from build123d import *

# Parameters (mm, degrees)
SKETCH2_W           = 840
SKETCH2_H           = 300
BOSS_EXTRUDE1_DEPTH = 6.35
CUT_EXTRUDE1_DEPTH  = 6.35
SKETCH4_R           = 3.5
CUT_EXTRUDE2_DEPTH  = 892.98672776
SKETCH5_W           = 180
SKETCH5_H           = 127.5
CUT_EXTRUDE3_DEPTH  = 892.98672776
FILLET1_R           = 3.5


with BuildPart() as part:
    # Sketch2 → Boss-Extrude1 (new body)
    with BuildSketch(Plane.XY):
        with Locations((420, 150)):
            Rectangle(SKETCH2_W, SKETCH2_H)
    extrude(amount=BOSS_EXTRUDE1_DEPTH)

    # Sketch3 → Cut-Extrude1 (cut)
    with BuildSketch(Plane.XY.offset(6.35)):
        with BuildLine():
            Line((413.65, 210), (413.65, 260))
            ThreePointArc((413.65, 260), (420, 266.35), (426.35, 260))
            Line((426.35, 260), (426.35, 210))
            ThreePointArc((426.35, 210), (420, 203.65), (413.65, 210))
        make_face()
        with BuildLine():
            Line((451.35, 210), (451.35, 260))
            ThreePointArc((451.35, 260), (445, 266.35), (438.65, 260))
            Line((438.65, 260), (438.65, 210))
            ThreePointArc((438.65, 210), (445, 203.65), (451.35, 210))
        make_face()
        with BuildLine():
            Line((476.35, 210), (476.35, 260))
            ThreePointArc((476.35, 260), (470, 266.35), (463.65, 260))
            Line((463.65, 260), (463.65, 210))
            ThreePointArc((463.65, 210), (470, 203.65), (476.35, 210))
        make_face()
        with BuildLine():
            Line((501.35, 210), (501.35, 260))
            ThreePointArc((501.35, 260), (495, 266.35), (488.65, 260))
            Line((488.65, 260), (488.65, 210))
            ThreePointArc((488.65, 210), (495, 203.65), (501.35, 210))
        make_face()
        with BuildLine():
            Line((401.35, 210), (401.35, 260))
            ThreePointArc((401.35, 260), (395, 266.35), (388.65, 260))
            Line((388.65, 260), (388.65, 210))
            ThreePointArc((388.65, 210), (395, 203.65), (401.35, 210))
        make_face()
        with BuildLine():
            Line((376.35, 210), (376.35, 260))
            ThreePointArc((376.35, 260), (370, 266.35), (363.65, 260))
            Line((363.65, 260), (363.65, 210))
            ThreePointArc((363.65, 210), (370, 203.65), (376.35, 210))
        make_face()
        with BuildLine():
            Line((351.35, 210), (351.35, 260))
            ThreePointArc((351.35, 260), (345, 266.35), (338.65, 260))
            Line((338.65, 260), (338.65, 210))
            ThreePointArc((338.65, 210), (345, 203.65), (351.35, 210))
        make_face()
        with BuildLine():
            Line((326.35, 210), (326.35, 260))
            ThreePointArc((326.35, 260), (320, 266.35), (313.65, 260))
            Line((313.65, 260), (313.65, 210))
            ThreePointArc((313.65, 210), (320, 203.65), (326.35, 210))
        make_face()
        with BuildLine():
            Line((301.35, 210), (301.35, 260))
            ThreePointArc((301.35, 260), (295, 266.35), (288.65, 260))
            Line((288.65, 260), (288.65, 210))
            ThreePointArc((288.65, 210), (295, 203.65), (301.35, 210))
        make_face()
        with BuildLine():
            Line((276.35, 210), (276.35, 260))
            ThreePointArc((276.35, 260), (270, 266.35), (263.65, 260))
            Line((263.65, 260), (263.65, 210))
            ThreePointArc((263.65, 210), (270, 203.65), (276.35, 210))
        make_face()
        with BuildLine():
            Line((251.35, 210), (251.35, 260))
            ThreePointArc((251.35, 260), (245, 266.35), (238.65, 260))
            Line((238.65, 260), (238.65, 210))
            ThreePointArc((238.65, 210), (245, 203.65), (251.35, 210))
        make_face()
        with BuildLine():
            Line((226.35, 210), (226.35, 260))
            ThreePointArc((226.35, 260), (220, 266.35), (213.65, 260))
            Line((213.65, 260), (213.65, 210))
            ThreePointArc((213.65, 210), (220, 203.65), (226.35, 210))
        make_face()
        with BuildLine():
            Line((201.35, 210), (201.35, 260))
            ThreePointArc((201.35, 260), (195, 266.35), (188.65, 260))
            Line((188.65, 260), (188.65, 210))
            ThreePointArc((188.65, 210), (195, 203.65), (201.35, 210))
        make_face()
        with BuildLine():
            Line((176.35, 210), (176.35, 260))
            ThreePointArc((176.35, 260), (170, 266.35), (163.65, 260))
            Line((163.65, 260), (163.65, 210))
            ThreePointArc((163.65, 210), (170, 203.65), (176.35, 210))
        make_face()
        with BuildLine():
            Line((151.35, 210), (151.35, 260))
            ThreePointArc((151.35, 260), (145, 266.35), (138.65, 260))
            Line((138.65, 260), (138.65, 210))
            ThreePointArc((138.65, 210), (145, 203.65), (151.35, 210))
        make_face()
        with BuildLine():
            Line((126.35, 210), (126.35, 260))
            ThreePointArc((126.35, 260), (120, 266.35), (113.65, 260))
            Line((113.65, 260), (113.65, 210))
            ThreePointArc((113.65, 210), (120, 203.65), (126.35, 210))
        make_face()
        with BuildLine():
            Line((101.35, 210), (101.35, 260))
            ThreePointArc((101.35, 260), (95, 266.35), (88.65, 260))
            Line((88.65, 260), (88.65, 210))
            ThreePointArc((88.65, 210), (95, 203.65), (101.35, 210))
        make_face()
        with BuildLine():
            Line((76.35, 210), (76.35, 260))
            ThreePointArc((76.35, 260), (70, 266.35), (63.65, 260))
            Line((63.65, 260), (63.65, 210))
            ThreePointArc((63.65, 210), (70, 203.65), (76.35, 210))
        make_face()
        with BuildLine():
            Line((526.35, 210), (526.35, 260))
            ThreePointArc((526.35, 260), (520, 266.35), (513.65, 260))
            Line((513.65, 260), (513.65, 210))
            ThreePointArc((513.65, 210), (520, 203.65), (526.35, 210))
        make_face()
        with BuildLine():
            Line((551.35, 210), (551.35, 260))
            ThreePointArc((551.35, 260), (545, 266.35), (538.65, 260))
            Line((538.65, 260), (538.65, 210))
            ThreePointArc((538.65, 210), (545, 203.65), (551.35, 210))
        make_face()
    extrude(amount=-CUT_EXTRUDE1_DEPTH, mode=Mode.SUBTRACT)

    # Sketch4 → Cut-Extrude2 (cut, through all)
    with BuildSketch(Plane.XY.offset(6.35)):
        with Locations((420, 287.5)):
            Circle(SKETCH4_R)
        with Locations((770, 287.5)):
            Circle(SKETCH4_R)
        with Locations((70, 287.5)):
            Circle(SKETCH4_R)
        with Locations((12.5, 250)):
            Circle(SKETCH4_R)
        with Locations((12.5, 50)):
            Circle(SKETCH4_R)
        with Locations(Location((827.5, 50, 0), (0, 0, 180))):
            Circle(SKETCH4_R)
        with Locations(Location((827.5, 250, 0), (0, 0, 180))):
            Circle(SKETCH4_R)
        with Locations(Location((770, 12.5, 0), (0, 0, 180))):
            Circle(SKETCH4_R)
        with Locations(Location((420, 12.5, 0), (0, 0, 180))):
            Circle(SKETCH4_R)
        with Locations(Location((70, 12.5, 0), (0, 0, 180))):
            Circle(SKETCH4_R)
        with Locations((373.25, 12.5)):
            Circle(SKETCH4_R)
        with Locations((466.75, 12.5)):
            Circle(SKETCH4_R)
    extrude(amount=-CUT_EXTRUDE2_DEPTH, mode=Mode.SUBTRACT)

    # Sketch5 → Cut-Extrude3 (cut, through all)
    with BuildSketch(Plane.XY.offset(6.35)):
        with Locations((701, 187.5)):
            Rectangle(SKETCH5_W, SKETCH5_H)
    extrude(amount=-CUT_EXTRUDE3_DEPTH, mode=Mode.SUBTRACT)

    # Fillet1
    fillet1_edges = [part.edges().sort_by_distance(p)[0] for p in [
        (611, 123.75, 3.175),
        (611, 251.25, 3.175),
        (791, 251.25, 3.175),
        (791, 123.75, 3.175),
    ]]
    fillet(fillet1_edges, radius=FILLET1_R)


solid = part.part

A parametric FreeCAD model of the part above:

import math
import FreeCAD as App
import Part
import Sketcher


def edges_at(feature, points):
    """Names of the edges that pass closest to the given points."""
    edges = feature.Shape.Edges
    near = lambda p: min(range(len(edges)), key=lambda i: edges[i].distToShape(Part.Vertex(*p))[0])
    return sorted({f"Edge{near(p) + 1}" for p in points})

doc = App.newDocument("Part")
params = doc.addObject("Spreadsheet::Sheet", "Params")
for row, (alias, value) in enumerate([
    ("sketch1_width", "840 mm"),
    ("sketch1_height", "300 mm"),
    ("pad1_length", "6.35 mm"),
    ("sketch2_height", "50 mm"),
    ("sketch2_radius", "6.35 mm"),
    ("pocket1_length", "6.35 mm"),
    ("sketch3_diameter", "7 mm"),
    ("sketch4_width", "180 mm"),
    ("sketch4_height", "127.5 mm"),
    ("fillet_radius", "3.5 mm"),
], start=1):
    params.set(f"A{row}", alias)
    params.set(f"B{row}", "=" + value)
    params.setAlias(f"B{row}", alias)

body = doc.addObject("PartDesign::Body", "Body")

# Sketch on XY plane
sketch1 = doc.addObject("Sketcher::SketchObject", "Sketch")
body.addObject(sketch1)
sketch1.AttachmentSupport = (doc.XY_Plane, [""])
sketch1.MapMode = "FlatFace"
sketch1.addGeometry(Part.LineSegment(App.Vector(0, 300, 0), App.Vector(0, 0, 0)), False)
sketch1.addGeometry(Part.LineSegment(App.Vector(0, 0, 0), App.Vector(840, 0, 0)), False)
sketch1.addGeometry(Part.LineSegment(App.Vector(840, 0, 0), App.Vector(840, 300, 0)), False)
sketch1.addGeometry(Part.LineSegment(App.Vector(840, 300, 0), App.Vector(0, 300, 0)), False)
sketch1.addConstraint(Sketcher.Constraint("Coincident", 0, 2, 1, 1))
sketch1.addConstraint(Sketcher.Constraint("Coincident", 1, 2, 2, 1))
sketch1.addConstraint(Sketcher.Constraint("Coincident", 2, 2, 3, 1))
sketch1.addConstraint(Sketcher.Constraint("Coincident", 3, 2, 0, 1))
sketch1.addConstraint(Sketcher.Constraint("Vertical", 0))
sketch1.addConstraint(Sketcher.Constraint("Horizontal", 1))
sketch1.addConstraint(Sketcher.Constraint("Vertical", 2))
sketch1.addConstraint(Sketcher.Constraint("Horizontal", 3))
sketch1.addConstraint(Sketcher.Constraint("Coincident", 0, 2, -1, 1))
sketch1.addConstraint(Sketcher.Constraint("DistanceX", 1, 1, 1, 2, 840.0))
sketch1.addConstraint(Sketcher.Constraint("DistanceY", 0, 2, 0, 1, 300.0))
sketch1.setExpression("Constraints[9]", "Params.sketch1_width")
sketch1.setExpression("Constraints[10]", "Params.sketch1_height")
pad1 = doc.addObject("PartDesign::Pad", "Pad")
body.addObject(pad1)
pad1.Profile = sketch1
pad1.setExpression("Length", "Params.pad1_length")

# Sketch on XY plane
sketch2 = doc.addObject("Sketcher::SketchObject", "Sketch001")
body.addObject(sketch2)
sketch2.AttachmentSupport = (doc.XY_Plane, [""])
sketch2.MapMode = "FlatFace"
sketch2.AttachmentOffset = App.Placement(App.Vector(0, 0, 6.35), App.Rotation())
sketch2.addGeometry(Part.LineSegment(App.Vector(414, 260, 0), App.Vector(414, 210, 0)), False)
sketch2.addGeometry(Part.ArcOfCircle(Part.Circle(App.Vector(420, 210, 0), App.Vector(0, 0, 1), 6), math.radians(180), math.radians(360)), False)
sketch2.addGeometry(Part.LineSegment(App.Vector(426, 210, 0), App.Vector(426, 260, 0)), False)
sketch2.addGeometry(Part.ArcOfCircle(Part.Circle(App.Vector(420, 260, 0), App.Vector(0, 0, 1), 6), math.radians(0), math.radians(180)), False)
sketch2.addGeometry(Part.LineSegment(App.Vector(451, 210, 0), App.Vector(451, 260, 0)), False)
sketch2.addGeometry(Part.ArcOfCircle(Part.Circle(App.Vector(445, 260, 0), App.Vector(0, 0, 1), 6), math.radians(0), math.radians(180)), False)
sketch2.addGeometry(Part.LineSegment(App.Vector(439, 260, 0), App.Vector(439, 210, 0)), False)
sketch2.addGeometry(Part.ArcOfCircle(Part.Circle(App.Vector(445, 210, 0), App.Vector(0, 0, 1), 6), math.radians(180), math.radians(360)), False)
sketch2.addGeometry(Part.LineSegment(App.Vector(476, 210, 0), App.Vector(476, 260, 0)), False)
sketch2.addGeometry(Part.ArcOfCircle(Part.Circle(App.Vector(470, 260, 0), App.Vector(0, 0, 1), 6), math.radians(0), math.radians(180)), False)
sketch2.addGeometry(Part.LineSegment(App.Vector(464, 260, 0), App.Vector(464, 210, 0)), False)
sketch2.addGeometry(Part.ArcOfCircle(Part.Circle(App.Vector(470, 210, 0), App.Vector(0, 0, 1), 6), math.radians(180), math.radians(360)), False)
sketch2.addGeometry(Part.LineSegment(App.Vector(501, 210, 0), App.Vector(501, 260, 0)), False)
sketch2.addGeometry(Part.ArcOfCircle(Part.Circle(App.Vector(495, 260, 0), App.Vector(0, 0, 1), 6), math.radians(0), math.radians(180)), False)
sketch2.addGeometry(Part.LineSegment(App.Vector(489, 260, 0), App.Vector(489, 210, 0)), False)
sketch2.addGeometry(Part.ArcOfCircle(Part.Circle(App.Vector(495, 210, 0), App.Vector(0, 0, 1), 6), math.radians(180), math.radians(360)), False)
sketch2.addGeometry(Part.LineSegment(App.Vector(401, 210, 0), App.Vector(401, 260, 0)), False)
sketch2.addGeometry(Part.ArcOfCircle(Part.Circle(App.Vector(395, 260, 0), App.Vector(0, 0, 1), 6), math.radians(0), math.radians(180)), False)
sketch2.addGeometry(Part.LineSegment(App.Vector(389, 260, 0), App.Vector(389, 210, 0)), False)
sketch2.addGeometry(Part.ArcOfCircle(Part.Circle(App.Vector(395, 210, 0), App.Vector(0, 0, 1), 6), math.radians(180), math.radians(360)), False)
sketch2.addGeometry(Part.LineSegment(App.Vector(376, 210, 0), App.Vector(376, 260, 0)), False)
sketch2.addGeometry(Part.ArcOfCircle(Part.Circle(App.Vector(370, 260, 0), App.Vector(0, 0, 1), 6), math.radians(0), math.radians(180)), False)
sketch2.addGeometry(Part.LineSegment(App.Vector(364, 260, 0), App.Vector(364, 210, 0)), False)
sketch2.addGeometry(Part.ArcOfCircle(Part.Circle(App.Vector(370, 210, 0), App.Vector(0, 0, 1), 6), math.radians(180), math.radians(360)), False)
sketch2.addGeometry(Part.LineSegment(App.Vector(351, 210, 0), App.Vector(351, 260, 0)), False)
sketch2.addGeometry(Part.ArcOfCircle(Part.Circle(App.Vector(345, 260, 0), App.Vector(0, 0, 1), 6), math.radians(0), math.radians(180)), False)
sketch2.addGeometry(Part.LineSegment(App.Vector(339, 260, 0), App.Vector(339, 210, 0)), False)
sketch2.addGeometry(Part.ArcOfCircle(Part.Circle(App.Vector(345, 210, 0), App.Vector(0, 0, 1), 6), math.radians(180), math.radians(360)), False)
sketch2.addGeometry(Part.LineSegment(App.Vector(326, 210, 0), App.Vector(326, 260, 0)), False)
sketch2.addGeometry(Part.ArcOfCircle(Part.Circle(App.Vector(320, 260, 0), App.Vector(0, 0, 1), 6), math.radians(0), math.radians(180)), False)
sketch2.addGeometry(Part.LineSegment(App.Vector(314, 260, 0), App.Vector(314, 210, 0)), False)
sketch2.addGeometry(Part.ArcOfCircle(Part.Circle(App.Vector(320, 210, 0), App.Vector(0, 0, 1), 6), math.radians(180), math.radians(360)), False)
sketch2.addGeometry(Part.LineSegment(App.Vector(301, 210, 0), App.Vector(301, 260, 0)), False)
sketch2.addGeometry(Part.ArcOfCircle(Part.Circle(App.Vector(295, 260, 0), App.Vector(0, 0, 1), 6), math.radians(0), math.radians(180)), False)
sketch2.addGeometry(Part.LineSegment(App.Vector(289, 260, 0), App.Vector(289, 210, 0)), False)
sketch2.addGeometry(Part.ArcOfCircle(Part.Circle(App.Vector(295, 210, 0), App.Vector(0, 0, 1), 6), math.radians(180), math.radians(360)), False)
sketch2.addGeometry(Part.LineSegment(App.Vector(276, 210, 0), App.Vector(276, 260, 0)), False)
sketch2.addGeometry(Part.ArcOfCircle(Part.Circle(App.Vector(270, 260, 0), App.Vector(0, 0, 1), 6), math.radians(0), math.radians(180)), False)
sketch2.addGeometry(Part.LineSegment(App.Vector(264, 260, 0), App.Vector(264, 210, 0)), False)
sketch2.addGeometry(Part.ArcOfCircle(Part.Circle(App.Vector(270, 210, 0), App.Vector(0, 0, 1), 6), math.radians(180), math.radians(360)), False)
sketch2.addGeometry(Part.LineSegment(App.Vector(251, 210, 0), App.Vector(251, 260, 0)), False)
sketch2.addGeometry(Part.ArcOfCircle(Part.Circle(App.Vector(245, 260, 0), App.Vector(0, 0, 1), 6), math.radians(0), math.radians(180)), False)
sketch2.addGeometry(Part.LineSegment(App.Vector(239, 260, 0), App.Vector(239, 210, 0)), False)
sketch2.addGeometry(Part.ArcOfCircle(Part.Circle(App.Vector(245, 210, 0), App.Vector(0, 0, 1), 6), math.radians(180), math.radians(360)), False)
sketch2.addGeometry(Part.LineSegment(App.Vector(226, 210, 0), App.Vector(226, 260, 0)), False)
sketch2.addGeometry(Part.ArcOfCircle(Part.Circle(App.Vector(220, 260, 0), App.Vector(0, 0, 1), 6), math.radians(0), math.radians(180)), False)
sketch2.addGeometry(Part.LineSegment(App.Vector(214, 260, 0), App.Vector(214, 210, 0)), False)
sketch2.addGeometry(Part.ArcOfCircle(Part.Circle(App.Vector(220, 210, 0), App.Vector(0, 0, 1), 6), math.radians(180), math.radians(360)), False)
sketch2.addGeometry(Part.LineSegment(App.Vector(201, 210, 0), App.Vector(201, 260, 0)), False)
sketch2.addGeometry(Part.ArcOfCircle(Part.Circle(App.Vector(195, 260, 0), App.Vector(0, 0, 1), 6), math.radians(0), math.radians(180)), False)
sketch2.addGeometry(Part.LineSegment(App.Vector(189, 260, 0), App.Vector(189, 210, 0)), False)
sketch2.addGeometry(Part.ArcOfCircle(Part.Circle(App.Vector(195, 210, 0), App.Vector(0, 0, 1), 6), math.radians(180), math.radians(360)), False)
sketch2.addGeometry(Part.LineSegment(App.Vector(176, 210, 0), App.Vector(176, 260, 0)), False)
sketch2.addGeometry(Part.ArcOfCircle(Part.Circle(App.Vector(170, 260, 0), App.Vector(0, 0, 1), 6), math.radians(0), math.radians(180)), False)
sketch2.addGeometry(Part.LineSegment(App.Vector(164, 260, 0), App.Vector(164, 210, 0)), False)
sketch2.addGeometry(Part.ArcOfCircle(Part.Circle(App.Vector(170, 210, 0), App.Vector(0, 0, 1), 6), math.radians(180), math.radians(360)), False)
sketch2.addGeometry(Part.LineSegment(App.Vector(151, 210, 0), App.Vector(151, 260, 0)), False)
sketch2.addGeometry(Part.ArcOfCircle(Part.Circle(App.Vector(145, 260, 0), App.Vector(0, 0, 1), 6), math.radians(0), math.radians(180)), False)
sketch2.addGeometry(Part.LineSegment(App.Vector(139, 260, 0), App.Vector(139, 210, 0)), False)
sketch2.addGeometry(Part.ArcOfCircle(Part.Circle(App.Vector(145, 210, 0), App.Vector(0, 0, 1), 6), math.radians(180), math.radians(360)), False)
sketch2.addGeometry(Part.LineSegment(App.Vector(126, 210, 0), App.Vector(126, 260, 0)), False)
sketch2.addGeometry(Part.ArcOfCircle(Part.Circle(App.Vector(120, 260, 0), App.Vector(0, 0, 1), 6), math.radians(0), math.radians(180)), False)
sketch2.addGeometry(Part.LineSegment(App.Vector(114, 260, 0), App.Vector(114, 210, 0)), False)
sketch2.addGeometry(Part.ArcOfCircle(Part.Circle(App.Vector(120, 210, 0), App.Vector(0, 0, 1), 6), math.radians(180), math.radians(360)), False)
sketch2.addGeometry(Part.LineSegment(App.Vector(101, 210, 0), App.Vector(101, 260, 0)), False)
sketch2.addGeometry(Part.ArcOfCircle(Part.Circle(App.Vector(95, 260, 0), App.Vector(0, 0, 1), 6), math.radians(0), math.radians(180)), False)
sketch2.addGeometry(Part.LineSegment(App.Vector(89, 260, 0), App.Vector(89, 210, 0)), False)
sketch2.addGeometry(Part.ArcOfCircle(Part.Circle(App.Vector(95, 210, 0), App.Vector(0, 0, 1), 6), math.radians(180), math.radians(360)), False)
sketch2.addGeometry(Part.LineSegment(App.Vector(76, 210, 0), App.Vector(76, 260, 0)), False)
sketch2.addGeometry(Part.ArcOfCircle(Part.Circle(App.Vector(70, 260, 0), App.Vector(0, 0, 1), 6), math.radians(0), math.radians(180)), False)
sketch2.addGeometry(Part.LineSegment(App.Vector(64, 260, 0), App.Vector(64, 210, 0)), False)
sketch2.addGeometry(Part.ArcOfCircle(Part.Circle(App.Vector(70, 210, 0), App.Vector(0, 0, 1), 6), math.radians(180), math.radians(360)), False)
sketch2.addGeometry(Part.LineSegment(App.Vector(526, 210, 0), App.Vector(526, 260, 0)), False)
sketch2.addGeometry(Part.ArcOfCircle(Part.Circle(App.Vector(520, 260, 0), App.Vector(0, 0, 1), 6), math.radians(0), math.radians(180)), False)
sketch2.addGeometry(Part.LineSegment(App.Vector(514, 260, 0), App.Vector(514, 210, 0)), False)
sketch2.addGeometry(Part.ArcOfCircle(Part.Circle(App.Vector(520, 210, 0), App.Vector(0, 0, 1), 6), math.radians(180), math.radians(360)), False)
sketch2.addGeometry(Part.LineSegment(App.Vector(551, 210, 0), App.Vector(551, 260, 0)), False)
sketch2.addGeometry(Part.ArcOfCircle(Part.Circle(App.Vector(545, 260, 0), App.Vector(0, 0, 1), 6), math.radians(0), math.radians(180)), False)
sketch2.addGeometry(Part.LineSegment(App.Vector(539, 260, 0), App.Vector(539, 210, 0)), False)
sketch2.addGeometry(Part.ArcOfCircle(Part.Circle(App.Vector(545, 210, 0), App.Vector(0, 0, 1), 6), math.radians(180), math.radians(360)), False)
sketch2.addConstraint(Sketcher.Constraint("Tangent", 0, 2, 1, 1))
sketch2.addConstraint(Sketcher.Constraint("Tangent", 1, 2, 2, 1))
sketch2.addConstraint(Sketcher.Constraint("Tangent", 2, 2, 3, 1))
sketch2.addConstraint(Sketcher.Constraint("Tangent", 3, 2, 0, 1))
sketch2.addConstraint(Sketcher.Constraint("Tangent", 4, 2, 5, 1))
sketch2.addConstraint(Sketcher.Constraint("Tangent", 5, 2, 6, 1))
sketch2.addConstraint(Sketcher.Constraint("Tangent", 6, 2, 7, 1))
sketch2.addConstraint(Sketcher.Constraint("Tangent", 7, 2, 4, 1))
sketch2.addConstraint(Sketcher.Constraint("Tangent", 8, 2, 9, 1))
sketch2.addConstraint(Sketcher.Constraint("Tangent", 9, 2, 10, 1))
sketch2.addConstraint(Sketcher.Constraint("Tangent", 10, 2, 11, 1))
sketch2.addConstraint(Sketcher.Constraint("Tangent", 11, 2, 8, 1))
sketch2.addConstraint(Sketcher.Constraint("Tangent", 12, 2, 13, 1))
sketch2.addConstraint(Sketcher.Constraint("Tangent", 13, 2, 14, 1))
sketch2.addConstraint(Sketcher.Constraint("Tangent", 14, 2, 15, 1))
sketch2.addConstraint(Sketcher.Constraint("Tangent", 15, 2, 12, 1))
sketch2.addConstraint(Sketcher.Constraint("Tangent", 16, 2, 17, 1))
sketch2.addConstraint(Sketcher.Constraint("Tangent", 17, 2, 18, 1))
sketch2.addConstraint(Sketcher.Constraint("Tangent", 18, 2, 19, 1))
sketch2.addConstraint(Sketcher.Constraint("Tangent", 19, 2, 16, 1))
sketch2.addConstraint(Sketcher.Constraint("Tangent", 20, 2, 21, 1))
sketch2.addConstraint(Sketcher.Constraint("Tangent", 21, 2, 22, 1))
sketch2.addConstraint(Sketcher.Constraint("Tangent", 22, 2, 23, 1))
sketch2.addConstraint(Sketcher.Constraint("Tangent", 23, 2, 20, 1))
sketch2.addConstraint(Sketcher.Constraint("Tangent", 24, 2, 25, 1))
sketch2.addConstraint(Sketcher.Constraint("Tangent", 25, 2, 26, 1))
sketch2.addConstraint(Sketcher.Constraint("Tangent", 26, 2, 27, 1))
sketch2.addConstraint(Sketcher.Constraint("Tangent", 27, 2, 24, 1))
sketch2.addConstraint(Sketcher.Constraint("Tangent", 28, 2, 29, 1))
sketch2.addConstraint(Sketcher.Constraint("Tangent", 29, 2, 30, 1))
sketch2.addConstraint(Sketcher.Constraint("Tangent", 30, 2, 31, 1))
sketch2.addConstraint(Sketcher.Constraint("Tangent", 31, 2, 28, 1))
sketch2.addConstraint(Sketcher.Constraint("Tangent", 32, 2, 33, 1))
sketch2.addConstraint(Sketcher.Constraint("Tangent", 33, 2, 34, 1))
sketch2.addConstraint(Sketcher.Constraint("Tangent", 34, 2, 35, 1))
sketch2.addConstraint(Sketcher.Constraint("Tangent", 35, 2, 32, 1))
sketch2.addConstraint(Sketcher.Constraint("Tangent", 36, 2, 37, 1))
sketch2.addConstraint(Sketcher.Constraint("Tangent", 37, 2, 38, 1))
sketch2.addConstraint(Sketcher.Constraint("Tangent", 38, 2, 39, 1))
sketch2.addConstraint(Sketcher.Constraint("Tangent", 39, 2, 36, 1))
sketch2.addConstraint(Sketcher.Constraint("Tangent", 40, 2, 41, 1))
sketch2.addConstraint(Sketcher.Constraint("Tangent", 41, 2, 42, 1))
sketch2.addConstraint(Sketcher.Constraint("Tangent", 42, 2, 43, 1))
sketch2.addConstraint(Sketcher.Constraint("Tangent", 43, 2, 40, 1))
sketch2.addConstraint(Sketcher.Constraint("Tangent", 44, 2, 45, 1))
sketch2.addConstraint(Sketcher.Constraint("Tangent", 45, 2, 46, 1))
sketch2.addConstraint(Sketcher.Constraint("Tangent", 46, 2, 47, 1))
sketch2.addConstraint(Sketcher.Constraint("Tangent", 47, 2, 44, 1))
sketch2.addConstraint(Sketcher.Constraint("Tangent", 48, 2, 49, 1))
sketch2.addConstraint(Sketcher.Constraint("Tangent", 49, 2, 50, 1))
sketch2.addConstraint(Sketcher.Constraint("Tangent", 50, 2, 51, 1))
sketch2.addConstraint(Sketcher.Constraint("Tangent", 51, 2, 48, 1))
sketch2.addConstraint(Sketcher.Constraint("Tangent", 52, 2, 53, 1))
sketch2.addConstraint(Sketcher.Constraint("Tangent", 53, 2, 54, 1))
sketch2.addConstraint(Sketcher.Constraint("Tangent", 54, 2, 55, 1))
sketch2.addConstraint(Sketcher.Constraint("Tangent", 55, 2, 52, 1))
sketch2.addConstraint(Sketcher.Constraint("Tangent", 56, 2, 57, 1))
sketch2.addConstraint(Sketcher.Constraint("Tangent", 57, 2, 58, 1))
sketch2.addConstraint(Sketcher.Constraint("Tangent", 58, 2, 59, 1))
sketch2.addConstraint(Sketcher.Constraint("Tangent", 59, 2, 56, 1))
sketch2.addConstraint(Sketcher.Constraint("Tangent", 60, 2, 61, 1))
sketch2.addConstraint(Sketcher.Constraint("Tangent", 61, 2, 62, 1))
sketch2.addConstraint(Sketcher.Constraint("Tangent", 62, 2, 63, 1))
sketch2.addConstraint(Sketcher.Constraint("Tangent", 63, 2, 60, 1))
sketch2.addConstraint(Sketcher.Constraint("Tangent", 64, 2, 65, 1))
sketch2.addConstraint(Sketcher.Constraint("Tangent", 65, 2, 66, 1))
sketch2.addConstraint(Sketcher.Constraint("Tangent", 66, 2, 67, 1))
sketch2.addConstraint(Sketcher.Constraint("Tangent", 67, 2, 64, 1))
sketch2.addConstraint(Sketcher.Constraint("Tangent", 68, 2, 69, 1))
sketch2.addConstraint(Sketcher.Constraint("Tangent", 69, 2, 70, 1))
sketch2.addConstraint(Sketcher.Constraint("Tangent", 70, 2, 71, 1))
sketch2.addConstraint(Sketcher.Constraint("Tangent", 71, 2, 68, 1))
sketch2.addConstraint(Sketcher.Constraint("Tangent", 72, 2, 73, 1))
sketch2.addConstraint(Sketcher.Constraint("Tangent", 73, 2, 74, 1))
sketch2.addConstraint(Sketcher.Constraint("Tangent", 74, 2, 75, 1))
sketch2.addConstraint(Sketcher.Constraint("Tangent", 75, 2, 72, 1))
sketch2.addConstraint(Sketcher.Constraint("Tangent", 76, 2, 77, 1))
sketch2.addConstraint(Sketcher.Constraint("Tangent", 77, 2, 78, 1))
sketch2.addConstraint(Sketcher.Constraint("Tangent", 78, 2, 79, 1))
sketch2.addConstraint(Sketcher.Constraint("Tangent", 79, 2, 76, 1))
sketch2.addConstraint(Sketcher.Constraint("Vertical", 0))
sketch2.addConstraint(Sketcher.Constraint("Vertical", 2))
sketch2.addConstraint(Sketcher.Constraint("Vertical", 4))
sketch2.addConstraint(Sketcher.Constraint("Vertical", 6))
sketch2.addConstraint(Sketcher.Constraint("Vertical", 8))
sketch2.addConstraint(Sketcher.Constraint("Vertical", 10))
sketch2.addConstraint(Sketcher.Constraint("Vertical", 12))
sketch2.addConstraint(Sketcher.Constraint("Vertical", 14))
sketch2.addConstraint(Sketcher.Constraint("Vertical", 16))
sketch2.addConstraint(Sketcher.Constraint("Vertical", 18))
sketch2.addConstraint(Sketcher.Constraint("Vertical", 20))
sketch2.addConstraint(Sketcher.Constraint("Vertical", 22))
sketch2.addConstraint(Sketcher.Constraint("Vertical", 24))
sketch2.addConstraint(Sketcher.Constraint("Vertical", 26))
sketch2.addConstraint(Sketcher.Constraint("Vertical", 28))
sketch2.addConstraint(Sketcher.Constraint("Vertical", 30))
sketch2.addConstraint(Sketcher.Constraint("Vertical", 32))
sketch2.addConstraint(Sketcher.Constraint("Vertical", 34))
sketch2.addConstraint(Sketcher.Constraint("Vertical", 36))
sketch2.addConstraint(Sketcher.Constraint("Vertical", 38))
sketch2.addConstraint(Sketcher.Constraint("Vertical", 40))
sketch2.addConstraint(Sketcher.Constraint("Vertical", 42))
sketch2.addConstraint(Sketcher.Constraint("Vertical", 44))
sketch2.addConstraint(Sketcher.Constraint("Vertical", 46))
sketch2.addConstraint(Sketcher.Constraint("Vertical", 48))
sketch2.addConstraint(Sketcher.Constraint("Vertical", 50))
sketch2.addConstraint(Sketcher.Constraint("Vertical", 52))
sketch2.addConstraint(Sketcher.Constraint("Vertical", 54))
sketch2.addConstraint(Sketcher.Constraint("Vertical", 56))
sketch2.addConstraint(Sketcher.Constraint("Vertical", 58))
sketch2.addConstraint(Sketcher.Constraint("Vertical", 60))
sketch2.addConstraint(Sketcher.Constraint("Vertical", 62))
sketch2.addConstraint(Sketcher.Constraint("Vertical", 64))
sketch2.addConstraint(Sketcher.Constraint("Vertical", 66))
sketch2.addConstraint(Sketcher.Constraint("Vertical", 68))
sketch2.addConstraint(Sketcher.Constraint("Vertical", 70))
sketch2.addConstraint(Sketcher.Constraint("Vertical", 72))
sketch2.addConstraint(Sketcher.Constraint("Vertical", 74))
sketch2.addConstraint(Sketcher.Constraint("Vertical", 76))
sketch2.addConstraint(Sketcher.Constraint("Vertical", 78))
sketch2.addConstraint(Sketcher.Constraint("Equal", 3, 5))
sketch2.addConstraint(Sketcher.Constraint("Equal", 7, 9))
sketch2.addConstraint(Sketcher.Constraint("Equal", 11, 13))
sketch2.addConstraint(Sketcher.Constraint("Equal", 15, 17))
sketch2.addConstraint(Sketcher.Constraint("Equal", 19, 21))
sketch2.addConstraint(Sketcher.Constraint("Equal", 23, 25))
sketch2.addConstraint(Sketcher.Constraint("Equal", 27, 29))
sketch2.addConstraint(Sketcher.Constraint("Equal", 31, 33))
sketch2.addConstraint(Sketcher.Constraint("Equal", 35, 37))
sketch2.addConstraint(Sketcher.Constraint("Equal", 39, 41))
sketch2.addConstraint(Sketcher.Constraint("Equal", 43, 45))
sketch2.addConstraint(Sketcher.Constraint("Equal", 47, 49))
sketch2.addConstraint(Sketcher.Constraint("Equal", 51, 53))
sketch2.addConstraint(Sketcher.Constraint("Equal", 55, 57))
sketch2.addConstraint(Sketcher.Constraint("Equal", 59, 61))
sketch2.addConstraint(Sketcher.Constraint("Equal", 63, 65))
sketch2.addConstraint(Sketcher.Constraint("Equal", 67, 69))
sketch2.addConstraint(Sketcher.Constraint("Equal", 71, 73))
sketch2.addConstraint(Sketcher.Constraint("Equal", 75, 77))
sketch2.addConstraint(Sketcher.Constraint("Horizontal", 3, 3, 5, 3))
sketch2.addConstraint(Sketcher.Constraint("Horizontal", 1, 3, 7, 3))
sketch2.addConstraint(Sketcher.Constraint("Horizontal", 5, 3, 9, 3))
sketch2.addConstraint(Sketcher.Constraint("Horizontal", 7, 3, 11, 3))
sketch2.addConstraint(Sketcher.Constraint("Horizontal", 9, 3, 13, 3))
sketch2.addConstraint(Sketcher.Constraint("Horizontal", 11, 3, 15, 3))
sketch2.addConstraint(Sketcher.Constraint("Horizontal", 13, 3, 17, 3))
sketch2.addConstraint(Sketcher.Constraint("Horizontal", 15, 3, 19, 3))
sketch2.addConstraint(Sketcher.Constraint("Horizontal", 17, 3, 21, 3))
sketch2.addConstraint(Sketcher.Constraint("Horizontal", 19, 3, 23, 3))
sketch2.addConstraint(Sketcher.Constraint("Horizontal", 21, 3, 25, 3))
sketch2.addConstraint(Sketcher.Constraint("Horizontal", 23, 3, 27, 3))
sketch2.addConstraint(Sketcher.Constraint("Horizontal", 25, 3, 29, 3))
sketch2.addConstraint(Sketcher.Constraint("Horizontal", 27, 3, 31, 3))
sketch2.addConstraint(Sketcher.Constraint("Horizontal", 29, 3, 33, 3))
sketch2.addConstraint(Sketcher.Constraint("Horizontal", 31, 3, 35, 3))
sketch2.addConstraint(Sketcher.Constraint("Horizontal", 33, 3, 37, 3))
sketch2.addConstraint(Sketcher.Constraint("Horizontal", 35, 3, 39, 3))
sketch2.addConstraint(Sketcher.Constraint("Horizontal", 37, 3, 41, 3))
sketch2.addConstraint(Sketcher.Constraint("Horizontal", 39, 3, 43, 3))
sketch2.addConstraint(Sketcher.Constraint("Horizontal", 41, 3, 45, 3))
sketch2.addConstraint(Sketcher.Constraint("Horizontal", 43, 3, 47, 3))
sketch2.addConstraint(Sketcher.Constraint("Horizontal", 45, 3, 49, 3))
sketch2.addConstraint(Sketcher.Constraint("Horizontal", 47, 3, 51, 3))
sketch2.addConstraint(Sketcher.Constraint("Horizontal", 49, 3, 53, 3))
sketch2.addConstraint(Sketcher.Constraint("Horizontal", 51, 3, 55, 3))
sketch2.addConstraint(Sketcher.Constraint("Horizontal", 53, 3, 57, 3))
sketch2.addConstraint(Sketcher.Constraint("Horizontal", 55, 3, 59, 3))
sketch2.addConstraint(Sketcher.Constraint("Horizontal", 57, 3, 61, 3))
sketch2.addConstraint(Sketcher.Constraint("Horizontal", 59, 3, 63, 3))
sketch2.addConstraint(Sketcher.Constraint("Horizontal", 61, 3, 65, 3))
sketch2.addConstraint(Sketcher.Constraint("Horizontal", 63, 3, 67, 3))
sketch2.addConstraint(Sketcher.Constraint("Horizontal", 65, 3, 69, 3))
sketch2.addConstraint(Sketcher.Constraint("Horizontal", 67, 3, 71, 3))
sketch2.addConstraint(Sketcher.Constraint("Horizontal", 69, 3, 73, 3))
sketch2.addConstraint(Sketcher.Constraint("Horizontal", 71, 3, 75, 3))
sketch2.addConstraint(Sketcher.Constraint("Horizontal", 73, 3, 77, 3))
sketch2.addConstraint(Sketcher.Constraint("Horizontal", 75, 3, 79, 3))
sketch2.addConstraint(Sketcher.Constraint("DistanceY", 0, 2, 0, 1, 50.0))
sketch2.addConstraint(Sketcher.Constraint("Radius", 1, 6.35))
sketch2.addConstraint(Sketcher.Constraint("DistanceX", -1, 1, 1, 3, 420.0))
sketch2.addConstraint(Sketcher.Constraint("DistanceY", -1, 1, 1, 3, 210.0))
sketch2.addConstraint(Sketcher.Constraint("DistanceX", -1, 1, 5, 3, 445.0))
sketch2.addConstraint(Sketcher.Constraint("DistanceX", -1, 1, 9, 3, 470.0))
sketch2.addConstraint(Sketcher.Constraint("DistanceX", -1, 1, 13, 3, 495.0))
sketch2.addConstraint(Sketcher.Constraint("DistanceX", -1, 1, 17, 3, 395.0))
sketch2.addConstraint(Sketcher.Constraint("DistanceX", -1, 1, 21, 3, 370.0))
sketch2.addConstraint(Sketcher.Constraint("DistanceX", -1, 1, 25, 3, 345.0))
sketch2.addConstraint(Sketcher.Constraint("DistanceX", -1, 1, 29, 3, 320.0))
sketch2.addConstraint(Sketcher.Constraint("DistanceX", -1, 1, 33, 3, 295.0))
sketch2.addConstraint(Sketcher.Constraint("DistanceX", -1, 1, 37, 3, 270.0))
sketch2.addConstraint(Sketcher.Constraint("DistanceX", -1, 1, 41, 3, 245.0))
sketch2.addConstraint(Sketcher.Constraint("DistanceX", -1, 1, 45, 3, 220.0))
sketch2.addConstraint(Sketcher.Constraint("DistanceX", -1, 1, 49, 3, 195.0))
sketch2.addConstraint(Sketcher.Constraint("DistanceX", -1, 1, 53, 3, 170.0))
sketch2.addConstraint(Sketcher.Constraint("DistanceX", -1, 1, 57, 3, 145.0))
sketch2.addConstraint(Sketcher.Constraint("DistanceX", -1, 1, 61, 3, 120.0))
sketch2.addConstraint(Sketcher.Constraint("DistanceX", -1, 1, 65, 3, 95.0))
sketch2.addConstraint(Sketcher.Constraint("DistanceX", -1, 1, 69, 3, 70.0))
sketch2.addConstraint(Sketcher.Constraint("DistanceX", -1, 1, 73, 3, 520.0))
sketch2.addConstraint(Sketcher.Constraint("DistanceX", -1, 1, 77, 3, 545.0))
sketch2.setExpression("Constraints[177]", "Params.sketch2_height")
sketch2.setExpression("Constraints[178]", "Params.sketch2_radius")
pocket1 = doc.addObject("PartDesign::Pocket", "Pocket")
body.addObject(pocket1)
pocket1.Profile = sketch2
pocket1.setExpression("Length", "Params.pocket1_length")

# Sketch on XY plane
sketch3 = doc.addObject("Sketcher::SketchObject", "Sketch002")
body.addObject(sketch3)
sketch3.AttachmentSupport = (doc.XY_Plane, [""])
sketch3.MapMode = "FlatFace"
sketch3.AttachmentOffset = App.Placement(App.Vector(0, 0, 6.35), App.Rotation())
sketch3.addGeometry(Part.Circle(App.Vector(420, 287.5, 0), App.Vector(0, 0, 1), 3.5), False)
sketch3.addGeometry(Part.Circle(App.Vector(770, 287.5, 0), App.Vector(0, 0, 1), 3.5), False)
sketch3.addGeometry(Part.Circle(App.Vector(70, 287.5, 0), App.Vector(0, 0, 1), 3.5), False)
sketch3.addGeometry(Part.Circle(App.Vector(12.5, 250, 0), App.Vector(0, 0, 1), 3.5), False)
sketch3.addGeometry(Part.Circle(App.Vector(12.5, 50, 0), App.Vector(0, 0, 1), 3.5), False)
sketch3.addGeometry(Part.Circle(App.Vector(827.5, 50, 0), App.Vector(0, 0, 1), 3.5), False)
sketch3.addGeometry(Part.Circle(App.Vector(827.5, 250, 0), App.Vector(0, 0, 1), 3.5), False)
sketch3.addGeometry(Part.Circle(App.Vector(770, 12.5, 0), App.Vector(0, 0, 1), 3.5), False)
sketch3.addGeometry(Part.Circle(App.Vector(420, 12.5, 0), App.Vector(0, 0, 1), 3.5), False)
sketch3.addGeometry(Part.Circle(App.Vector(70, 12.5, 0), App.Vector(0, 0, 1), 3.5), False)
sketch3.addGeometry(Part.Circle(App.Vector(373.2, 12.5, 0), App.Vector(0, 0, 1), 3.5), False)
sketch3.addGeometry(Part.Circle(App.Vector(466.8, 12.5, 0), App.Vector(0, 0, 1), 3.5), False)
sketch3.addConstraint(Sketcher.Constraint("Equal", 0, 1))
sketch3.addConstraint(Sketcher.Constraint("Equal", 1, 2))
sketch3.addConstraint(Sketcher.Constraint("Equal", 2, 3))
sketch3.addConstraint(Sketcher.Constraint("Equal", 3, 4))
sketch3.addConstraint(Sketcher.Constraint("Equal", 4, 5))
sketch3.addConstraint(Sketcher.Constraint("Equal", 5, 6))
sketch3.addConstraint(Sketcher.Constraint("Equal", 6, 7))
sketch3.addConstraint(Sketcher.Constraint("Equal", 7, 8))
sketch3.addConstraint(Sketcher.Constraint("Equal", 8, 9))
sketch3.addConstraint(Sketcher.Constraint("Equal", 9, 10))
sketch3.addConstraint(Sketcher.Constraint("Equal", 10, 11))
sketch3.addConstraint(Sketcher.Constraint("Horizontal", 0, 3, 1, 3))
sketch3.addConstraint(Sketcher.Constraint("Horizontal", 1, 3, 2, 3))
sketch3.addConstraint(Sketcher.Constraint("Horizontal", 4, 3, 5, 3))
sketch3.addConstraint(Sketcher.Constraint("Horizontal", 3, 3, 6, 3))
sketch3.addConstraint(Sketcher.Constraint("Horizontal", 7, 3, 8, 3))
sketch3.addConstraint(Sketcher.Constraint("Horizontal", 8, 3, 9, 3))
sketch3.addConstraint(Sketcher.Constraint("Horizontal", 9, 3, 10, 3))
sketch3.addConstraint(Sketcher.Constraint("Horizontal", 10, 3, 11, 3))
sketch3.addConstraint(Sketcher.Constraint("Vertical", 3, 3, 4, 3))
sketch3.addConstraint(Sketcher.Constraint("Vertical", 5, 3, 6, 3))
sketch3.addConstraint(Sketcher.Constraint("Vertical", 1, 3, 7, 3))
sketch3.addConstraint(Sketcher.Constraint("Vertical", 0, 3, 8, 3))
sketch3.addConstraint(Sketcher.Constraint("Vertical", 2, 3, 9, 3))
sketch3.addConstraint(Sketcher.Constraint("Diameter", 0, 7.0))
sketch3.addConstraint(Sketcher.Constraint("DistanceX", -1, 1, 0, 3, 420.0))
sketch3.addConstraint(Sketcher.Constraint("DistanceX", -1, 1, 1, 3, 770.0))
sketch3.addConstraint(Sketcher.Constraint("DistanceX", -1, 1, 2, 3, 70.0))
sketch3.addConstraint(Sketcher.Constraint("DistanceY", -1, 1, 3, 3, 250.0))
sketch3.addConstraint(Sketcher.Constraint("DistanceY", -1, 1, 4, 3, 50.0))
sketch3.addConstraint(Sketcher.Constraint("DistanceX", 4, 3, 5, 3, 815.0))
sketch3.addConstraint(Sketcher.Constraint("DistanceY", 7, 3, 1, 3, 275.0))
sketch3.addConstraint(Sketcher.Constraint("DistanceY", -1, 1, 0, 3, 287.5))
sketch3.addConstraint(Sketcher.Constraint("DistanceX", -1, 1, 3, 3, 12.5))
sketch3.addConstraint(Sketcher.Constraint("DistanceX", 10, 3, 11, 3, 93.5))
sketch3.addConstraint(Sketcher.Constraint("DistanceX", -1, 1, 10, 3, 373.25))
sketch3.setExpression("Constraints[24]", "Params.sketch3_diameter")
pocket2 = doc.addObject("PartDesign::Pocket", "Pocket001")
body.addObject(pocket2)
pocket2.Profile = sketch3
pocket2.Type = "ThroughAll"

# Sketch on XY plane
sketch4 = doc.addObject("Sketcher::SketchObject", "Sketch003")
body.addObject(sketch4)
sketch4.AttachmentSupport = (doc.XY_Plane, [""])
sketch4.MapMode = "FlatFace"
sketch4.AttachmentOffset = App.Placement(App.Vector(0, 0, 6.35), App.Rotation())
sketch4.addGeometry(Part.LineSegment(App.Vector(611, 251, 0), App.Vector(611, 124, 0)), False)
sketch4.addGeometry(Part.LineSegment(App.Vector(611, 124, 0), App.Vector(791, 124, 0)), False)
sketch4.addGeometry(Part.LineSegment(App.Vector(791, 124, 0), App.Vector(791, 251, 0)), False)
sketch4.addGeometry(Part.LineSegment(App.Vector(791, 251, 0), App.Vector(611, 251, 0)), False)
sketch4.addConstraint(Sketcher.Constraint("Coincident", 0, 2, 1, 1))
sketch4.addConstraint(Sketcher.Constraint("Coincident", 1, 2, 2, 1))
sketch4.addConstraint(Sketcher.Constraint("Coincident", 2, 2, 3, 1))
sketch4.addConstraint(Sketcher.Constraint("Coincident", 3, 2, 0, 1))
sketch4.addConstraint(Sketcher.Constraint("Vertical", 0))
sketch4.addConstraint(Sketcher.Constraint("Horizontal", 1))
sketch4.addConstraint(Sketcher.Constraint("Vertical", 2))
sketch4.addConstraint(Sketcher.Constraint("Horizontal", 3))
sketch4.addConstraint(Sketcher.Constraint("DistanceX", 1, 1, 1, 2, 180.0))
sketch4.addConstraint(Sketcher.Constraint("DistanceY", 0, 2, 0, 1, 127.5))
sketch4.addConstraint(Sketcher.Constraint("DistanceX", -1, 1, 0, 2, 611.0))
sketch4.addConstraint(Sketcher.Constraint("DistanceY", -1, 1, 0, 2, 123.75))
sketch4.setExpression("Constraints[8]", "Params.sketch4_width")
sketch4.setExpression("Constraints[9]", "Params.sketch4_height")
pocket3 = doc.addObject("PartDesign::Pocket", "Pocket002")
body.addObject(pocket3)
pocket3.Profile = sketch4
pocket3.Type = "ThroughAll"
doc.recompute()

fillet = doc.addObject("PartDesign::Fillet", "Fillet")
body.addObject(fillet)
fillet.Base = (pocket3, edges_at(pocket3, [
    (611, 123.75, 3.175),
    (611, 251.25, 3.175),
    (791, 251.25, 3.175),
    (791, 123.75, 3.175),
]))
fillet.setExpression("Radius", "Params.fillet_radius")

doc.recompute()
